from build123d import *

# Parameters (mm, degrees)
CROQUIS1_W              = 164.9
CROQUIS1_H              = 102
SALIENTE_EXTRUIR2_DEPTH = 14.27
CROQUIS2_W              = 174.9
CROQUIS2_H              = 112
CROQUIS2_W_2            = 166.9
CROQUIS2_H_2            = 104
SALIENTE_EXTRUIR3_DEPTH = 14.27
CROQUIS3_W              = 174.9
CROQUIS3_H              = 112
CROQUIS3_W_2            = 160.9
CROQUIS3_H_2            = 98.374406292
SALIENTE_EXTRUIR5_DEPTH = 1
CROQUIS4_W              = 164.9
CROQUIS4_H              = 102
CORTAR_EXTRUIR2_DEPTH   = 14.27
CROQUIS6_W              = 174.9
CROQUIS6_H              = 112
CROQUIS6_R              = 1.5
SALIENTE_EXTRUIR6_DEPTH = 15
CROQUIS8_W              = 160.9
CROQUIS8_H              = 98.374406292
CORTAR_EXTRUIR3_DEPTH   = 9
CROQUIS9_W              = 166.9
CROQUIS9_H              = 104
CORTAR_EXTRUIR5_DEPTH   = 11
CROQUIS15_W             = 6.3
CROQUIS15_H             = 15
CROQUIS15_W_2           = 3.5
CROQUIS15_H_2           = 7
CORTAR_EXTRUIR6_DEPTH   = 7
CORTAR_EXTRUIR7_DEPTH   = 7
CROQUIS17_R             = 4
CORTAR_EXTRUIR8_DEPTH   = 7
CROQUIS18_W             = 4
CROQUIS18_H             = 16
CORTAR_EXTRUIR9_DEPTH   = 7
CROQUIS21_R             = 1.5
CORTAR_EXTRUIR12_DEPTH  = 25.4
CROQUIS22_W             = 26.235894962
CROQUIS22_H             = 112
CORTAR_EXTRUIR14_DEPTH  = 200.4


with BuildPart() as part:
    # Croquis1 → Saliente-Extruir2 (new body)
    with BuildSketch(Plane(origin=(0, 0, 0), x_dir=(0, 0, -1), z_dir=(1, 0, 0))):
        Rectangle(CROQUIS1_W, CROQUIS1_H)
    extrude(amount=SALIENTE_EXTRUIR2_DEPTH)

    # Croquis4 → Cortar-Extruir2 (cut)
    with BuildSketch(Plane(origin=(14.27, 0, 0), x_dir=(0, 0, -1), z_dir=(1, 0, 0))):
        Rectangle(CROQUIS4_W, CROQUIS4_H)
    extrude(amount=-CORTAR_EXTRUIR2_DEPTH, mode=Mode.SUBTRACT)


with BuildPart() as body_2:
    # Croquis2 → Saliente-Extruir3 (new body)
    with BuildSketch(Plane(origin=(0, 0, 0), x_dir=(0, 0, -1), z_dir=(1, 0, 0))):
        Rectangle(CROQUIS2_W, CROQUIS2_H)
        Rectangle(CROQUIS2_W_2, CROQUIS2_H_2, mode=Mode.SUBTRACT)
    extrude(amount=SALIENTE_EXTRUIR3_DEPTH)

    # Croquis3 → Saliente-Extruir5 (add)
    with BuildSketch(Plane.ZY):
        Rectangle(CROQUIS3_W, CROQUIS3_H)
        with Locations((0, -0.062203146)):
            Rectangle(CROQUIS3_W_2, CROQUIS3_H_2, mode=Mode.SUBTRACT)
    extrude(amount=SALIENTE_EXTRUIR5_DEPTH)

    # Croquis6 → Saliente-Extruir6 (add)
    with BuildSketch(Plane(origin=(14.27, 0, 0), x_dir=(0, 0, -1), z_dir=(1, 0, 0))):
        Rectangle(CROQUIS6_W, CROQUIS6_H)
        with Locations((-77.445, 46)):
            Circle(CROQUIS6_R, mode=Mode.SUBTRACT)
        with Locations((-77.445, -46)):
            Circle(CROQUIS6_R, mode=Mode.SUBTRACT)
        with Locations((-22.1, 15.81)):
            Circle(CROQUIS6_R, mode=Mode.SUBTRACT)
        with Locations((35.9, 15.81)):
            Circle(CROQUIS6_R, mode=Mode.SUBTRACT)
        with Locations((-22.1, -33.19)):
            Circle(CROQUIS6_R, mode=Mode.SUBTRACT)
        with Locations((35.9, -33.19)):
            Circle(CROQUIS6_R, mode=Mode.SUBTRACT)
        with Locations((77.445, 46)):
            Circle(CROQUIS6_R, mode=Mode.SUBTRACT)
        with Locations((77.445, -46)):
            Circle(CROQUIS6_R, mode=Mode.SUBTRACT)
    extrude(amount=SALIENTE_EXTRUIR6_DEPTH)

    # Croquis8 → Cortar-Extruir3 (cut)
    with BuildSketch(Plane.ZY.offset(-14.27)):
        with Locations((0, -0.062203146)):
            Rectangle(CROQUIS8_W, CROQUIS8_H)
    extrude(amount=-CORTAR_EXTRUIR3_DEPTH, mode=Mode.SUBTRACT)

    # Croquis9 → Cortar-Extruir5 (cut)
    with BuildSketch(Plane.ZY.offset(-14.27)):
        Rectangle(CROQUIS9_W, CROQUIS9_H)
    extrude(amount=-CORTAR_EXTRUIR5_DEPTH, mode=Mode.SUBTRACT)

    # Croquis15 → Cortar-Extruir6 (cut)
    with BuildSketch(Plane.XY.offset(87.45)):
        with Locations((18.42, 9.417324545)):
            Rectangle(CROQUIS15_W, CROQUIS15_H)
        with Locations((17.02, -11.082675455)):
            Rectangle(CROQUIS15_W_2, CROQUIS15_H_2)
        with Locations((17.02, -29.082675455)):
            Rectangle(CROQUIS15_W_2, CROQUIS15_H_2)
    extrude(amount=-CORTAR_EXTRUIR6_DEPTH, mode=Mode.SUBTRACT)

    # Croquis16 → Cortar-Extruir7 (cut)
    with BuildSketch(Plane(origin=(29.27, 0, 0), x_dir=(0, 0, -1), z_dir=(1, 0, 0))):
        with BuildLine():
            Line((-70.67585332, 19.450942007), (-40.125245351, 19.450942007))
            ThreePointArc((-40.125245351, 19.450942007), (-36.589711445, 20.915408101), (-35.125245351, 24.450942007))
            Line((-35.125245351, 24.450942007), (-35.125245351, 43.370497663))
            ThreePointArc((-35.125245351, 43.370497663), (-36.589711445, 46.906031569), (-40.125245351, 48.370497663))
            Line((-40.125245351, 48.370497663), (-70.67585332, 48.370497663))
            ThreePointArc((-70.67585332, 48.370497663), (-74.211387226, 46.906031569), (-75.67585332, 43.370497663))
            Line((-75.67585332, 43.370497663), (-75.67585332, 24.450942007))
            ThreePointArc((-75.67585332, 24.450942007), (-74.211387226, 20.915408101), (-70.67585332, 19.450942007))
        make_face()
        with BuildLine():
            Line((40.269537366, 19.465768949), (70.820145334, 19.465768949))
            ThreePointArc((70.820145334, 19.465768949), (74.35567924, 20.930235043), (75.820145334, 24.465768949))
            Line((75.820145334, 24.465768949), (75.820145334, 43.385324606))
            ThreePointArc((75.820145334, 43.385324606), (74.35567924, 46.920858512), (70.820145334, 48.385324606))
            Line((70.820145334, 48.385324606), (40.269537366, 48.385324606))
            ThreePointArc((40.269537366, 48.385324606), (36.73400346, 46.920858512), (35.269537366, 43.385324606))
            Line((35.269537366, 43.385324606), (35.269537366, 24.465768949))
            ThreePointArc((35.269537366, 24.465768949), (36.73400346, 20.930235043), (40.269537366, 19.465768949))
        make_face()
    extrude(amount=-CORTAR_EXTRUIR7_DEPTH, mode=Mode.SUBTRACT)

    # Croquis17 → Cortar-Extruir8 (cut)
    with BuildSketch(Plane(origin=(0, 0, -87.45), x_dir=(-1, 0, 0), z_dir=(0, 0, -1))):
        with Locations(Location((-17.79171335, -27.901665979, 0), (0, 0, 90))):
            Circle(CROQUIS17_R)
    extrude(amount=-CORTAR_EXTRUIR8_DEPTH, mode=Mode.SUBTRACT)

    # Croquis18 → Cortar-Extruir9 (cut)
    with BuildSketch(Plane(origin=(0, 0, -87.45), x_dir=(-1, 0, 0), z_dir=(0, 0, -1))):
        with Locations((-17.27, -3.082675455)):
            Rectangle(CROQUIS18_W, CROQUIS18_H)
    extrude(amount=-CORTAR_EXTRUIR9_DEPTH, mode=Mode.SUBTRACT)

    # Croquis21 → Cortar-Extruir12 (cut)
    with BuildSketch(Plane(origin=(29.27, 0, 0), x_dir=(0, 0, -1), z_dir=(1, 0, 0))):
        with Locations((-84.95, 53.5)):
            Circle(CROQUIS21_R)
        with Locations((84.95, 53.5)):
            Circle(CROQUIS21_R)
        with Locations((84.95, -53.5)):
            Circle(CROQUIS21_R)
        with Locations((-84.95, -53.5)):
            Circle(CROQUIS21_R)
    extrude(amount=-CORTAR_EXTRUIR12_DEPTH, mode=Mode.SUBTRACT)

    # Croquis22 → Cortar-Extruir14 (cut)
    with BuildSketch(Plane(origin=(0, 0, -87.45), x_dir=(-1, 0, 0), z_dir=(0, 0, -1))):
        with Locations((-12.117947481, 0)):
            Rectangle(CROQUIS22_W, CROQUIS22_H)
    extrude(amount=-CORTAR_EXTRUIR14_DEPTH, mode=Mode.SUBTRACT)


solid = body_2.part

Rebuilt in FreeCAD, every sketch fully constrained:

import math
import FreeCAD as App
import Part
import Sketcher
from FreeCAD import Vector
Q = App.Units.Quantity


def add_polygon(sketch, points):
    """Adds a closed chain of lines whose ends are joined by coincident constraints."""
    first, n = sketch.GeometryCount, len(points)
    for a, b in zip(points, points[1:] + points[:1]):
        sketch.addGeometry(Part.LineSegment(App.Vector(*a, 0), App.Vector(*b, 0)), False)
    for i in range(n):
        sketch.addConstraint(Sketcher.Constraint("Coincident", first + i, 2, first + (i + 1) % n, 1))

doc = App.newDocument("Part")
body = doc.addObject("PartDesign::Body", "Body")

# Sketch on YZ plane
sketch1 = body.newObject("Sketcher::SketchObject", "Sketch")
sketch1.AttachmentSupport = (doc.getObject("YZ_Plane"), [""])
sketch1.MapMode = "FlatFace"
add_polygon(sketch1, [(51, 82), (-51, 82), (-51, -82), (51, -82)])  # lines 0-3
sketch1.addConstraint([
    Sketcher.Constraint("Horizontal", 0),
    Sketcher.Constraint("Vertical", 1),
    Sketcher.Constraint("Horizontal", 2),
    Sketcher.Constraint("Vertical", 3),
    Sketcher.Constraint("Symmetric", 0, 2, 2, 2, -1, 1),
    Sketcher.Constraint("DistanceX", 0, 2, 0, 1, Q("102 mm")),
    Sketcher.Constraint("DistanceY", 1, 2, 1, 1, Q("164.9 mm")),
])
pad1 = body.newObject("PartDesign::Pad", "Pad")
pad1.Profile = sketch1
pad1.Length = 14.27

# Sketch on YZ plane
sketch2 = body.newObject("Sketcher::SketchObject", "Sketch001")
sketch2.AttachmentSupport = (doc.getObject("YZ_Plane"), [""])
sketch2.MapMode = "FlatFace"
sketch2.AttachmentOffset = App.Placement(Vector(0, 0, 14.27), App.Rotation())
add_polygon(sketch2, [(51, 82), (-51, 82), (-51, -82), (51, -82)])  # lines 0-3
sketch2.addConstraint([
    Sketcher.Constraint("Horizontal", 0),
    Sketcher.Constraint("Vertical", 1),
    Sketcher.Constraint("Horizontal", 2),
    Sketcher.Constraint("Vertical", 3),
    Sketcher.Constraint("Symmetric", 0, 2, 2, 2, -1, 1),
    Sketcher.Constraint("DistanceX", 0, 2, 0, 1, Q("102 mm")),
    Sketcher.Constraint("DistanceY", 1, 2, 1, 1, Q("164.9 mm")),
])
pocket1 = body.newObject("PartDesign::Pocket", "Pocket")
pocket1.Profile = sketch2
pocket1.Length = 14.27
body2 = doc.addObject("PartDesign::Body", "Body001")

# Sketch on YZ plane
sketch3 = body2.newObject("Sketcher::SketchObject", "Sketch002")
sketch3.AttachmentSupport = (doc.getObject("YZ_Plane001"), [""])
sketch3.MapMode = "FlatFace"
add_polygon(sketch3, [(56, 87), (-56, 87), (-56, -87), (56, -87)])  # lines 0-3
add_polygon(sketch3, [(-52, -83), (-52, 83), (52, 83), (52, -83)])  # lines 4-7
sketch3.addConstraint([
    Sketcher.Constraint("Horizontal", 0),
    Sketcher.Constraint("Vertical", 1),
    Sketcher.Constraint("Horizontal", 2),
    Sketcher.Constraint("Vertical", 3),
    Sketcher.Constraint("Vertical", 4),
    Sketcher.Constraint("Horizontal", 5),
    Sketcher.Constraint("Vertical", 6),
    Sketcher.Constraint("Horizontal", 7),
    Sketcher.Constraint("Symmetric", 0, 2, 2, 2, -1, 1),
    Sketcher.Constraint("Symmetric", 4, 2, 6, 2, -1, 1),
    Sketcher.Constraint("DistanceX", 0, 2, 0, 1, Q("112 mm")),
    Sketcher.Constraint("DistanceX", 5, 1, 5, 2, Q("104 mm")),
    Sketcher.Constraint("DistanceY", 1, 2, 1, 1, Q("174.9 mm")),
    Sketcher.Constraint("DistanceY", 4, 1, 4, 2, Q("166.9 mm")),
])
pad2 = body2.newObject("PartDesign::Pad", "Pad001")
pad2.Profile = sketch3
pad2.Length = 14.27

# Sketch on YZ plane
sketch4 = body2.newObject("Sketcher::SketchObject", "Sketch003")
sketch4.AttachmentSupport = (doc.getObject("YZ_Plane001"), [""])
sketch4.MapMode = "FlatFace"
add_polygon(sketch4, [(56, -87), (-56, -87), (-56, 87), (56, 87)])  # lines 0-3
add_polygon(sketch4, [(-49, 80), (-49, -80), (49, -80), (49, 80)])  # lines 4-7
sketch4.addConstraint([
    Sketcher.Constraint("Horizontal", 0),
    Sketcher.Constraint("Vertical", 1),
    Sketcher.Constraint("Horizontal", 2),
    Sketcher.Constraint("Vertical", 3),
    Sketcher.Constraint("Vertical", 4),
    Sketcher.Constraint("Horizontal", 5),
    Sketcher.Constraint("Vertical", 6),
    Sketcher.Constraint("Horizontal", 7),
    Sketcher.Constraint("Symmetric", 0, 2, 2, 2, -1, 1),
    Sketcher.Constraint("DistanceX", 0, 2, 0, 1, Q("112 mm")),
    Sketcher.Constraint("DistanceY", 1, 1, 1, 2, Q("174.9 mm")),
    Sketcher.Constraint("DistanceY", 4, 2, 4, 1, Q("160.9 mm")),
    Sketcher.Constraint("DistanceY", 0, 2, 4, 2, Q("7 mm")),
    Sketcher.Constraint("DistanceX", -1, 1, 5, 2, Q("49.125 mm")),
    Sketcher.Constraint("DistanceX", 5, 1, 5, 2, Q("98.374406 mm")),
])
pad3 = body2.newObject("PartDesign::Pad", "Pad002")
pad3.Profile = sketch4
pad3.Length = 1
pad3.Reversed = True

# Sketch on YZ plane
sketch5 = body2.newObject("Sketcher::SketchObject", "Sketch004")
sketch5.AttachmentSupport = (doc.getObject("YZ_Plane001"), [""])
sketch5.MapMode = "FlatFace"
sketch5.AttachmentOffset = App.Placement(Vector(0, 0, 14.27), App.Rotation())
add_polygon(sketch5, [(56, 87.5), (-56, 87.5), (-56, -87.5), (56, -87.5)])  # lines 0-3
sketch5.addGeometry(Part.Circle(Vector(-46, 77.4, 0), Vector(0, 0, 1), 1.5), False)  # 4
sketch5.addGeometry(Part.Circle(Vector(-33.2, 22.1, 0), Vector(0, 0, 1), 1.5), False)  # 5
sketch5.addGeometry(Part.Circle(Vector(-33.2, -35.9, 0), Vector(0, 0, 1), 1.5), False)  # 6
sketch5.addGeometry(Part.Circle(Vector(-46, -77.4, 0), Vector(0, 0, 1), 1.5), False)  # 7
sketch5.addGeometry(Part.Circle(Vector(15.8, 22.1, 0), Vector(0, 0, 1), 1.5), False)  # 8
sketch5.addGeometry(Part.Circle(Vector(46, 77.4, 0), Vector(0, 0, 1), 1.5), False)  # 9
sketch5.addGeometry(Part.Circle(Vector(15.8, -35.9, 0), Vector(0, 0, 1), 1.5), False)  # 10
sketch5.addGeometry(Part.Circle(Vector(46, -77.4, 0), Vector(0, 0, 1), 1.5), False)  # 11
sketch5.addConstraint([
    Sketcher.Constraint("Horizontal", 0),
    Sketcher.Constraint("Vertical", 1),
    Sketcher.Constraint("Horizontal", 2),
    Sketcher.Constraint("Vertical", 3),
    Sketcher.Constraint("Equal", 4, 5),
    Sketcher.Constraint("Equal", 5, 6),
    Sketcher.Constraint("Equal", 6, 7),
    Sketcher.Constraint("Equal", 7, 8),
    Sketcher.Constraint("Equal", 8, 9),
    Sketcher.Constraint("Equal", 9, 10),
    Sketcher.Constraint("Equal", 10, 11),
    Sketcher.Constraint("Symmetric", 7, 3, 9, 3, -1, 1),
    Sketcher.Constraint("Symmetric", 4, 3, 11, 3, -1, 1),
    Sketcher.Constraint("Symmetric", 0, 2, 2, 2, -1, 1),
    Sketcher.Constraint("Symmetric", 4, 3, 9, 3, -2),
    Sketcher.Constraint("Horizontal", 5, 3, 8, 3),
    Sketcher.Constraint("Horizontal", 6, 3, 10, 3),
    Sketcher.Constraint("Vertical", 5, 3, 6, 3),
    Sketcher.Constraint("Vertical", 8, 3, 10, 3),
    Sketcher.Constraint("Diameter", 4, Q("3 mm")),
    Sketcher.Constraint("DistanceX", 0, 2, 0, 1, Q("112 mm")),
    Sketcher.Constraint("DistanceY", 1, 2, 1, 1, Q("174.9 mm")),
    Sketcher.Constraint("DistanceX", 4, 3, -1, 1, Q("46 mm")),
    Sketcher.Constraint("DistanceY", 6, 3, 5, 3, Q("58 mm")),
    Sketcher.Constraint("DistanceX", 5, 3, 8, 3, Q("49 mm")),
    Sketcher.Constraint("DistanceY", -1, 1, 5, 3, Q("22.1 mm")),
    Sketcher.Constraint("DistanceX", 5, 3, -1, 1, Q("33.19 mm")),
    Sketcher.Constraint("DistanceY", 7, 3, 4, 3, Q("154.89 mm")),
])
pad4 = body2.newObject("PartDesign::Pad", "Pad003")
pad4.Profile = sketch5
pad4.Length = 15

# Sketch on YZ plane
sketch6 = body2.newObject("Sketcher::SketchObject", "Sketch005")
sketch6.AttachmentSupport = (doc.getObject("YZ_Plane001"), [""])
sketch6.MapMode = "FlatFace"
sketch6.AttachmentOffset = App.Placement(Vector(0, 0, 14.27), App.Rotation())
add_polygon(sketch6, [(49, -80), (-49, -80), (-49, 80), (49, 80)])  # lines 0-3
sketch6.addConstraint([
    Sketcher.Constraint("Horizontal", 0),
    Sketcher.Constraint("Vertical", 1),
    Sketcher.Constraint("Horizontal", 2),
    Sketcher.Constraint("Vertical", 3),
    Sketcher.Constraint("DistanceY", 1, 1, 1, 2, Q("160.9 mm")),
    Sketcher.Constraint("DistanceY", 0, 2, -1, 1, Q("80.45 mm")),
    Sketcher.Constraint("DistanceX", -1, 1, 2, 2, Q("49.125 mm")),
    Sketcher.Constraint("DistanceX", 0, 2, 0, 1, Q("98.374406 mm")),
])
pocket2 = body2.newObject("PartDesign::Pocket", "Pocket001")
pocket2.Profile = sketch6
pocket2.Length = 9
pocket2.Reversed = True

# Sketch on YZ plane
sketch7 = body2.newObject("Sketcher::SketchObject", "Sketch006")
sketch7.AttachmentSupport = (doc.getObject("YZ_Plane001"), [""])
sketch7.MapMode = "FlatFace"
sketch7.AttachmentOffset = App.Placement(Vector(0, 0, 14.27), App.Rotation())
add_polygon(sketch7, [(52, -83), (-52, -83), (-52, 83), (52, 83)])  # lines 0-3
sketch7.addConstraint([
    Sketcher.Constraint("Horizontal", 0),
    Sketcher.Constraint("Vertical", 1),
    Sketcher.Constraint("Horizontal", 2),
    Sketcher.Constraint("Vertical", 3),
    Sketcher.Constraint("Symmetric", 0, 2, 2, 2, -1, 1),
    Sketcher.Constraint("DistanceX", 0, 2, 0, 1, Q("104 mm")),
    Sketcher.Constraint("DistanceY", 1, 1, 1, 2, Q("166.9 mm")),
])
pocket3 = body2.newObject("PartDesign::Pocket", "Pocket002")
pocket3.Profile = sketch7
pocket3.Length = 11
pocket3.Reversed = True

# Sketch on XY plane
sketch8 = body2.newObject("Sketcher::SketchObject", "Sketch007")
sketch8.AttachmentSupport = (doc.getObject("XY_Plane001"), [""])
sketch8.MapMode = "FlatFace"
sketch8.AttachmentOffset = App.Placement(Vector(0, 0, 87.45), App.Rotation())
add_polygon(sketch8, [(15.3, 16.9), (15.3, 1.9), (21.6, 1.9), (21.6, 16.9)])  # lines 0-3
add_polygon(sketch8, [(15.3, -7.6), (15.3, -14.6), (18.8, -14.6), (18.8, -7.6)])  # lines 4-7
add_polygon(sketch8, [(15.3, -25.6), (15.3, -32.6), (18.8, -32.6), (18.8, -25.6)])  # lines 8-11
sketch8.addConstraint([
    Sketcher.Constraint("Vertical", 0),
    Sketcher.Constraint("Horizontal", 1),
    Sketcher.Constraint("Vertical", 2),
    Sketcher.Constraint("Horizontal", 3),
    Sketcher.Constraint("Vertical", 4),
    Sketcher.Constraint("Horizontal", 5),
    Sketcher.Constraint("Vertical", 6),
    Sketcher.Constraint("Horizontal", 7),
    Sketcher.Constraint("Vertical", 8),
    Sketcher.Constraint("Horizontal", 9),
    Sketcher.Constraint("Vertical", 10),
    Sketcher.Constraint("Horizontal", 11),
    Sketcher.Constraint("Vertical", 3, 2, 4, 2),
    Sketcher.Constraint("Vertical", 7, 2, 8, 2),
    Sketcher.Constraint("Vertical", 6, 2, 9, 2),
    Sketcher.Constraint("Equal", 6, 8),
    Sketcher.Constraint("DistanceY", 0, 2, 0, 1, Q("15 mm")),
    Sketcher.Constraint("DistanceY", 4, 2, 4, 1, Q("7 mm")),
    Sketcher.Constraint("DistanceX", 1, 1, 1, 2, Q("6.3 mm")),
    Sketcher.Constraint("DistanceX", 5, 1, 5, 2, Q("3.5 mm")),
    Sketcher.Constraint("DistanceY", 8, 2, 4, 2, Q("18 mm")),
    Sketcher.Constraint("DistanceY", 4, 2, 0, 2, Q("16.5 mm")),
    Sketcher.Constraint("DistanceX", -1, 1, 0, 2, Q("15.27 mm")),
    Sketcher.Constraint("DistanceY", -1, 1, 0, 2, Q("1.917325 mm")),
])
pocket4 = body2.newObject("PartDesign::Pocket", "Pocket003")
pocket4.Profile = sketch8
pocket4.Length = 7

# Sketch on YZ plane
sketch9 = body2.newObject("Sketcher::SketchObject", "Sketch008")
sketch9.AttachmentSupport = (doc.getObject("YZ_Plane001"), [""])
sketch9.MapMode = "FlatFace"
sketch9.AttachmentOffset = App.Placement(Vector(0, 0, 29.27), App.Rotation())
sketch9.addGeometry([
    Part.LineSegment(Vector(19, 71, 0), Vector(19, 40, 0)),  # 0
    Part.ArcOfCircle(Part.Circle(Vector(24, 40, 0), Vector(0, 0, 1), 5), math.radians(180), math.radians(270)),  # 1
    Part.LineSegment(Vector(24, 35, 0), Vector(43, 35, 0)),  # 2
    Part.ArcOfCircle(Part.Circle(Vector(43, 40, 0), Vector(0, 0, 1), 5), math.radians(-90), math.radians(0)),  # 3
    Part.LineSegment(Vector(48, 40, 0), Vector(48, 71, 0)),  # 4
    Part.ArcOfCircle(Part.Circle(Vector(43, 71, 0), Vector(0, 0, 1), 5), math.radians(0), math.radians(90)),  # 5
    Part.LineSegment(Vector(43, 76, 0), Vector(24, 76, 0)),  # 6
    Part.ArcOfCircle(Part.Circle(Vector(24, 71, 0), Vector(0, 0, 1), 5), math.radians(90), math.radians(180)),  # 7
    Part.LineSegment(Vector(19, -40, 0), Vector(19, -71, 0)),  # 8
    Part.ArcOfCircle(Part.Circle(Vector(24, -71, 0), Vector(0, 0, 1), 5), math.radians(180), math.radians(270)),  # 9
    Part.LineSegment(Vector(24, -76, 0), Vector(43, -76, 0)),  # 10
    Part.ArcOfCircle(Part.Circle(Vector(43, -71, 0), Vector(0, 0, 1), 5), math.radians(-90), math.radians(0)),  # 11
    Part.LineSegment(Vector(48, -71, 0), Vector(48, -40, 0)),  # 12
    Part.ArcOfCircle(Part.Circle(Vector(43, -40, 0), Vector(0, 0, 1), 5), math.radians(0), math.radians(90)),  # 13
    Part.LineSegment(Vector(43, -35, 0), Vector(24, -35, 0)),  # 14
    Part.ArcOfCircle(Part.Circle(Vector(24, -40, 0), Vector(0, 0, 1), 5), math.radians(90), math.radians(180)),  # 15
], False)
sketch9.addConstraint([
    Sketcher.Constraint("Tangent", 0, 2, 1, 1),
    Sketcher.Constraint("Tangent", 1, 2, 2, 1),
    Sketcher.Constraint("Tangent", 2, 2, 3, 1),
    Sketcher.Constraint("Tangent", 3, 2, 4, 1),
    Sketcher.Constraint("Tangent", 4, 2, 5, 1),
    Sketcher.Constraint("Tangent", 5, 2, 6, 1),
    Sketcher.Constraint("Tangent", 6, 2, 7, 1),
    Sketcher.Constraint("Tangent", 7, 2, 0, 1),
    Sketcher.Constraint("Tangent", 8, 2, 9, 1),
    Sketcher.Constraint("Tangent", 9, 2, 10, 1),
    Sketcher.Constraint("Tangent", 10, 2, 11, 1),
    Sketcher.Constraint("Tangent", 11, 2, 12, 1),
    Sketcher.Constraint("Tangent", 12, 2, 13, 1),
    Sketcher.Constraint("Tangent", 13, 2, 14, 1),
    Sketcher.Constraint("Tangent", 14, 2, 15, 1),
    Sketcher.Constraint("Tangent", 15, 2, 8, 1),
    Sketcher.Constraint("Vertical", 0),
    Sketcher.Constraint("Horizontal", 2),
    Sketcher.Constraint("Vertical", 4),
    Sketcher.Constraint("Horizontal", 6),
    Sketcher.Constraint("Vertical", 8),
    Sketcher.Constraint("Horizontal", 10),
    Sketcher.Constraint("Vertical", 12),
    Sketcher.Constraint("Horizontal", 14),
    Sketcher.Constraint("Equal", 1, 3),
    Sketcher.Constraint("Equal", 3, 5),
    Sketcher.Constraint("Equal", 5, 7),
    Sketcher.Constraint("Equal", 7, 9),
    Sketcher.Constraint("Equal", 9, 11),
    Sketcher.Constraint("Equal", 11, 13),
    Sketcher.Constraint("Equal", 13, 15),
    Sketcher.Constraint("Equal", 6, 10),
    Sketcher.Constraint("Equal", 4, 8),
    Sketcher.Constraint("Radius", 1, Q("5 mm")),
    Sketcher.Constraint("DistanceY", 9, 3, 7, 3, Q("141.495999 mm")),
    Sketcher.Constraint("DistanceX", 2, 1, 2, 2, Q("18.919556 mm")),
    Sketcher.Constraint("DistanceY", 0, 2, 0, 1, Q("30.550608 mm")),
    Sketcher.Constraint("DistanceX", -1, 1, 9, 3, Q("24.465769 mm")),
    Sketcher.Constraint("DistanceX", 9, 3, 3, 3, Q("18.904729 mm")),
    Sketcher.Constraint("DistanceY", -1, 1, 1, 3, Q("40.125245 mm")),
])
pocket5 = body2.newObject("PartDesign::Pocket", "Pocket004")
pocket5.Profile = sketch9
pocket5.Length = 7

# Sketch on XY plane
sketch10 = body2.newObject("Sketcher::SketchObject", "Sketch009")
sketch10.AttachmentSupport = (doc.getObject("XY_Plane001"), [""])
sketch10.MapMode = "FlatFace"
sketch10.AttachmentOffset = App.Placement(Vector(0, 0, -87.45), App.Rotation())
sketch10.addGeometry(Part.Circle(Vector(17.8, -27.9, 0), Vector(0, 0, 1), 4), False)
sketch10.addConstraint([
    Sketcher.Constraint("Diameter", 0, Q("8 mm")),
    Sketcher.Constraint("DistanceX", -1, 1, 0, 3, Q("17.791713 mm")),
    Sketcher.Constraint("DistanceY", 0, 3, -1, 1, Q("27.901666 mm")),
])
pocket6 = body2.newObject("PartDesign::Pocket", "Pocket005")
pocket6.Profile = sketch10
pocket6.Length = 7
pocket6.Reversed = True

# Sketch on XY plane
sketch11 = body2.newObject("Sketcher::SketchObject", "Sketch010")
sketch11.AttachmentSupport = (doc.getObject("XY_Plane001"), [""])
sketch11.MapMode = "FlatFace"
sketch11.AttachmentOffset = App.Placement(Vector(0, 0, -87.45), App.Rotation())
add_polygon(sketch11, [(19.3, 4.9), (19.3, -11.1), (15.3, -11.1), (15.3, 4.9)])  # lines 0-3
sketch11.addConstraint([
    Sketcher.Constraint("Vertical", 0),
    Sketcher.Constraint("Horizontal", 1),
    Sketcher.Constraint("Vertical", 2),
    Sketcher.Constraint("Horizontal", 3),
    Sketcher.Constraint("DistanceX", 1, 2, 1, 1, Q("4 mm")),
    Sketcher.Constraint("DistanceY", 0, 2, 0, 1, Q("16 mm")),
    Sketcher.Constraint("DistanceX", -1, 1, 0, 2, Q("19.27 mm")),
    Sketcher.Constraint("DistanceY", 0, 2, -1, 1, Q("11.082675 mm")),
])
pocket7 = body2.newObject("PartDesign::Pocket", "Pocket006")
pocket7.Profile = sketch11
pocket7.Length = 7
pocket7.Reversed = True

# Sketch on YZ plane
sketch12 = body2.newObject("Sketcher::SketchObject", "Sketch011")
sketch12.AttachmentSupport = (doc.getObject("YZ_Plane001"), [""])
sketch12.MapMode = "FlatFace"
sketch12.AttachmentOffset = App.Placement(Vector(0, 0, 29.27), App.Rotation())
sketch12.addGeometry([
    Part.Circle(Vector(53.5, 85, 0), Vector(0, 0, 1), 1.5),
    Part.Circle(Vector(53.5, -85, 0), Vector(0, 0, 1), 1.5),
    Part.Circle(Vector(-53.5, -85, 0), Vector(0, 0, 1), 1.5),
    Part.Circle(Vector(-53.5, 85, 0), Vector(0, 0, 1), 1.5),
], False)
sketch12.addConstraint([
    Sketcher.Constraint("Equal", 0, 1),
    Sketcher.Constraint("Equal", 1, 2),
    Sketcher.Constraint("Equal", 2, 3),
    Sketcher.Constraint("Symmetric", 0, 3, 2, 3, -1, 1),
    Sketcher.Constraint("Symmetric", 1, 3, 3, 3, -1, 1),
    Sketcher.Constraint("Symmetric", 1, 3, 2, 3, -2),
    Sketcher.Constraint("Diameter", 0, Q("3 mm")),
    Sketcher.Constraint("DistanceX", 2, 3, 1, 3, Q("107 mm")),
    Sketcher.Constraint("DistanceY", 1, 3, 0, 3, Q("169.9 mm")),
])
pocket8 = body2.newObject("PartDesign::Pocket", "Pocket007")
pocket8.Profile = sketch12
pocket8.Length = 25.4

# Sketch on XY plane
sketch13 = body2.newObject("Sketcher::SketchObject", "Sketch012")
sketch13.AttachmentSupport = (doc.getObject("XY_Plane001"), [""])
sketch13.MapMode = "FlatFace"
sketch13.AttachmentOffset = App.Placement(Vector(0, 0, -87.45), App.Rotation())
add_polygon(sketch13, [(25, 56), (25, -56), (-1, -56), (-1, 56)])  # lines 0-3
sketch13.addConstraint([
    Sketcher.Constraint("Vertical", 0),
    Sketcher.Constraint("Horizontal", 1),
    Sketcher.Constraint("Vertical", 2),
    Sketcher.Constraint("Horizontal", 3),
    Sketcher.Constraint("DistanceY", 0, 2, 0, 1, Q("112 mm")),
    Sketcher.Constraint("DistanceY", 0, 2, -1, 1, Q("56 mm")),
    Sketcher.Constraint("DistanceX", 1, 2, -1, 1, Q("1 mm")),
    Sketcher.Constraint("DistanceX", 1, 2, 1, 1, Q("26.235895 mm")),
])
pocket9 = body2.newObject("PartDesign::Pocket", "Pocket008")
pocket9.Profile = sketch13
pocket9.Length = 200.4
pocket9.Reversed = True

doc.recompute()
